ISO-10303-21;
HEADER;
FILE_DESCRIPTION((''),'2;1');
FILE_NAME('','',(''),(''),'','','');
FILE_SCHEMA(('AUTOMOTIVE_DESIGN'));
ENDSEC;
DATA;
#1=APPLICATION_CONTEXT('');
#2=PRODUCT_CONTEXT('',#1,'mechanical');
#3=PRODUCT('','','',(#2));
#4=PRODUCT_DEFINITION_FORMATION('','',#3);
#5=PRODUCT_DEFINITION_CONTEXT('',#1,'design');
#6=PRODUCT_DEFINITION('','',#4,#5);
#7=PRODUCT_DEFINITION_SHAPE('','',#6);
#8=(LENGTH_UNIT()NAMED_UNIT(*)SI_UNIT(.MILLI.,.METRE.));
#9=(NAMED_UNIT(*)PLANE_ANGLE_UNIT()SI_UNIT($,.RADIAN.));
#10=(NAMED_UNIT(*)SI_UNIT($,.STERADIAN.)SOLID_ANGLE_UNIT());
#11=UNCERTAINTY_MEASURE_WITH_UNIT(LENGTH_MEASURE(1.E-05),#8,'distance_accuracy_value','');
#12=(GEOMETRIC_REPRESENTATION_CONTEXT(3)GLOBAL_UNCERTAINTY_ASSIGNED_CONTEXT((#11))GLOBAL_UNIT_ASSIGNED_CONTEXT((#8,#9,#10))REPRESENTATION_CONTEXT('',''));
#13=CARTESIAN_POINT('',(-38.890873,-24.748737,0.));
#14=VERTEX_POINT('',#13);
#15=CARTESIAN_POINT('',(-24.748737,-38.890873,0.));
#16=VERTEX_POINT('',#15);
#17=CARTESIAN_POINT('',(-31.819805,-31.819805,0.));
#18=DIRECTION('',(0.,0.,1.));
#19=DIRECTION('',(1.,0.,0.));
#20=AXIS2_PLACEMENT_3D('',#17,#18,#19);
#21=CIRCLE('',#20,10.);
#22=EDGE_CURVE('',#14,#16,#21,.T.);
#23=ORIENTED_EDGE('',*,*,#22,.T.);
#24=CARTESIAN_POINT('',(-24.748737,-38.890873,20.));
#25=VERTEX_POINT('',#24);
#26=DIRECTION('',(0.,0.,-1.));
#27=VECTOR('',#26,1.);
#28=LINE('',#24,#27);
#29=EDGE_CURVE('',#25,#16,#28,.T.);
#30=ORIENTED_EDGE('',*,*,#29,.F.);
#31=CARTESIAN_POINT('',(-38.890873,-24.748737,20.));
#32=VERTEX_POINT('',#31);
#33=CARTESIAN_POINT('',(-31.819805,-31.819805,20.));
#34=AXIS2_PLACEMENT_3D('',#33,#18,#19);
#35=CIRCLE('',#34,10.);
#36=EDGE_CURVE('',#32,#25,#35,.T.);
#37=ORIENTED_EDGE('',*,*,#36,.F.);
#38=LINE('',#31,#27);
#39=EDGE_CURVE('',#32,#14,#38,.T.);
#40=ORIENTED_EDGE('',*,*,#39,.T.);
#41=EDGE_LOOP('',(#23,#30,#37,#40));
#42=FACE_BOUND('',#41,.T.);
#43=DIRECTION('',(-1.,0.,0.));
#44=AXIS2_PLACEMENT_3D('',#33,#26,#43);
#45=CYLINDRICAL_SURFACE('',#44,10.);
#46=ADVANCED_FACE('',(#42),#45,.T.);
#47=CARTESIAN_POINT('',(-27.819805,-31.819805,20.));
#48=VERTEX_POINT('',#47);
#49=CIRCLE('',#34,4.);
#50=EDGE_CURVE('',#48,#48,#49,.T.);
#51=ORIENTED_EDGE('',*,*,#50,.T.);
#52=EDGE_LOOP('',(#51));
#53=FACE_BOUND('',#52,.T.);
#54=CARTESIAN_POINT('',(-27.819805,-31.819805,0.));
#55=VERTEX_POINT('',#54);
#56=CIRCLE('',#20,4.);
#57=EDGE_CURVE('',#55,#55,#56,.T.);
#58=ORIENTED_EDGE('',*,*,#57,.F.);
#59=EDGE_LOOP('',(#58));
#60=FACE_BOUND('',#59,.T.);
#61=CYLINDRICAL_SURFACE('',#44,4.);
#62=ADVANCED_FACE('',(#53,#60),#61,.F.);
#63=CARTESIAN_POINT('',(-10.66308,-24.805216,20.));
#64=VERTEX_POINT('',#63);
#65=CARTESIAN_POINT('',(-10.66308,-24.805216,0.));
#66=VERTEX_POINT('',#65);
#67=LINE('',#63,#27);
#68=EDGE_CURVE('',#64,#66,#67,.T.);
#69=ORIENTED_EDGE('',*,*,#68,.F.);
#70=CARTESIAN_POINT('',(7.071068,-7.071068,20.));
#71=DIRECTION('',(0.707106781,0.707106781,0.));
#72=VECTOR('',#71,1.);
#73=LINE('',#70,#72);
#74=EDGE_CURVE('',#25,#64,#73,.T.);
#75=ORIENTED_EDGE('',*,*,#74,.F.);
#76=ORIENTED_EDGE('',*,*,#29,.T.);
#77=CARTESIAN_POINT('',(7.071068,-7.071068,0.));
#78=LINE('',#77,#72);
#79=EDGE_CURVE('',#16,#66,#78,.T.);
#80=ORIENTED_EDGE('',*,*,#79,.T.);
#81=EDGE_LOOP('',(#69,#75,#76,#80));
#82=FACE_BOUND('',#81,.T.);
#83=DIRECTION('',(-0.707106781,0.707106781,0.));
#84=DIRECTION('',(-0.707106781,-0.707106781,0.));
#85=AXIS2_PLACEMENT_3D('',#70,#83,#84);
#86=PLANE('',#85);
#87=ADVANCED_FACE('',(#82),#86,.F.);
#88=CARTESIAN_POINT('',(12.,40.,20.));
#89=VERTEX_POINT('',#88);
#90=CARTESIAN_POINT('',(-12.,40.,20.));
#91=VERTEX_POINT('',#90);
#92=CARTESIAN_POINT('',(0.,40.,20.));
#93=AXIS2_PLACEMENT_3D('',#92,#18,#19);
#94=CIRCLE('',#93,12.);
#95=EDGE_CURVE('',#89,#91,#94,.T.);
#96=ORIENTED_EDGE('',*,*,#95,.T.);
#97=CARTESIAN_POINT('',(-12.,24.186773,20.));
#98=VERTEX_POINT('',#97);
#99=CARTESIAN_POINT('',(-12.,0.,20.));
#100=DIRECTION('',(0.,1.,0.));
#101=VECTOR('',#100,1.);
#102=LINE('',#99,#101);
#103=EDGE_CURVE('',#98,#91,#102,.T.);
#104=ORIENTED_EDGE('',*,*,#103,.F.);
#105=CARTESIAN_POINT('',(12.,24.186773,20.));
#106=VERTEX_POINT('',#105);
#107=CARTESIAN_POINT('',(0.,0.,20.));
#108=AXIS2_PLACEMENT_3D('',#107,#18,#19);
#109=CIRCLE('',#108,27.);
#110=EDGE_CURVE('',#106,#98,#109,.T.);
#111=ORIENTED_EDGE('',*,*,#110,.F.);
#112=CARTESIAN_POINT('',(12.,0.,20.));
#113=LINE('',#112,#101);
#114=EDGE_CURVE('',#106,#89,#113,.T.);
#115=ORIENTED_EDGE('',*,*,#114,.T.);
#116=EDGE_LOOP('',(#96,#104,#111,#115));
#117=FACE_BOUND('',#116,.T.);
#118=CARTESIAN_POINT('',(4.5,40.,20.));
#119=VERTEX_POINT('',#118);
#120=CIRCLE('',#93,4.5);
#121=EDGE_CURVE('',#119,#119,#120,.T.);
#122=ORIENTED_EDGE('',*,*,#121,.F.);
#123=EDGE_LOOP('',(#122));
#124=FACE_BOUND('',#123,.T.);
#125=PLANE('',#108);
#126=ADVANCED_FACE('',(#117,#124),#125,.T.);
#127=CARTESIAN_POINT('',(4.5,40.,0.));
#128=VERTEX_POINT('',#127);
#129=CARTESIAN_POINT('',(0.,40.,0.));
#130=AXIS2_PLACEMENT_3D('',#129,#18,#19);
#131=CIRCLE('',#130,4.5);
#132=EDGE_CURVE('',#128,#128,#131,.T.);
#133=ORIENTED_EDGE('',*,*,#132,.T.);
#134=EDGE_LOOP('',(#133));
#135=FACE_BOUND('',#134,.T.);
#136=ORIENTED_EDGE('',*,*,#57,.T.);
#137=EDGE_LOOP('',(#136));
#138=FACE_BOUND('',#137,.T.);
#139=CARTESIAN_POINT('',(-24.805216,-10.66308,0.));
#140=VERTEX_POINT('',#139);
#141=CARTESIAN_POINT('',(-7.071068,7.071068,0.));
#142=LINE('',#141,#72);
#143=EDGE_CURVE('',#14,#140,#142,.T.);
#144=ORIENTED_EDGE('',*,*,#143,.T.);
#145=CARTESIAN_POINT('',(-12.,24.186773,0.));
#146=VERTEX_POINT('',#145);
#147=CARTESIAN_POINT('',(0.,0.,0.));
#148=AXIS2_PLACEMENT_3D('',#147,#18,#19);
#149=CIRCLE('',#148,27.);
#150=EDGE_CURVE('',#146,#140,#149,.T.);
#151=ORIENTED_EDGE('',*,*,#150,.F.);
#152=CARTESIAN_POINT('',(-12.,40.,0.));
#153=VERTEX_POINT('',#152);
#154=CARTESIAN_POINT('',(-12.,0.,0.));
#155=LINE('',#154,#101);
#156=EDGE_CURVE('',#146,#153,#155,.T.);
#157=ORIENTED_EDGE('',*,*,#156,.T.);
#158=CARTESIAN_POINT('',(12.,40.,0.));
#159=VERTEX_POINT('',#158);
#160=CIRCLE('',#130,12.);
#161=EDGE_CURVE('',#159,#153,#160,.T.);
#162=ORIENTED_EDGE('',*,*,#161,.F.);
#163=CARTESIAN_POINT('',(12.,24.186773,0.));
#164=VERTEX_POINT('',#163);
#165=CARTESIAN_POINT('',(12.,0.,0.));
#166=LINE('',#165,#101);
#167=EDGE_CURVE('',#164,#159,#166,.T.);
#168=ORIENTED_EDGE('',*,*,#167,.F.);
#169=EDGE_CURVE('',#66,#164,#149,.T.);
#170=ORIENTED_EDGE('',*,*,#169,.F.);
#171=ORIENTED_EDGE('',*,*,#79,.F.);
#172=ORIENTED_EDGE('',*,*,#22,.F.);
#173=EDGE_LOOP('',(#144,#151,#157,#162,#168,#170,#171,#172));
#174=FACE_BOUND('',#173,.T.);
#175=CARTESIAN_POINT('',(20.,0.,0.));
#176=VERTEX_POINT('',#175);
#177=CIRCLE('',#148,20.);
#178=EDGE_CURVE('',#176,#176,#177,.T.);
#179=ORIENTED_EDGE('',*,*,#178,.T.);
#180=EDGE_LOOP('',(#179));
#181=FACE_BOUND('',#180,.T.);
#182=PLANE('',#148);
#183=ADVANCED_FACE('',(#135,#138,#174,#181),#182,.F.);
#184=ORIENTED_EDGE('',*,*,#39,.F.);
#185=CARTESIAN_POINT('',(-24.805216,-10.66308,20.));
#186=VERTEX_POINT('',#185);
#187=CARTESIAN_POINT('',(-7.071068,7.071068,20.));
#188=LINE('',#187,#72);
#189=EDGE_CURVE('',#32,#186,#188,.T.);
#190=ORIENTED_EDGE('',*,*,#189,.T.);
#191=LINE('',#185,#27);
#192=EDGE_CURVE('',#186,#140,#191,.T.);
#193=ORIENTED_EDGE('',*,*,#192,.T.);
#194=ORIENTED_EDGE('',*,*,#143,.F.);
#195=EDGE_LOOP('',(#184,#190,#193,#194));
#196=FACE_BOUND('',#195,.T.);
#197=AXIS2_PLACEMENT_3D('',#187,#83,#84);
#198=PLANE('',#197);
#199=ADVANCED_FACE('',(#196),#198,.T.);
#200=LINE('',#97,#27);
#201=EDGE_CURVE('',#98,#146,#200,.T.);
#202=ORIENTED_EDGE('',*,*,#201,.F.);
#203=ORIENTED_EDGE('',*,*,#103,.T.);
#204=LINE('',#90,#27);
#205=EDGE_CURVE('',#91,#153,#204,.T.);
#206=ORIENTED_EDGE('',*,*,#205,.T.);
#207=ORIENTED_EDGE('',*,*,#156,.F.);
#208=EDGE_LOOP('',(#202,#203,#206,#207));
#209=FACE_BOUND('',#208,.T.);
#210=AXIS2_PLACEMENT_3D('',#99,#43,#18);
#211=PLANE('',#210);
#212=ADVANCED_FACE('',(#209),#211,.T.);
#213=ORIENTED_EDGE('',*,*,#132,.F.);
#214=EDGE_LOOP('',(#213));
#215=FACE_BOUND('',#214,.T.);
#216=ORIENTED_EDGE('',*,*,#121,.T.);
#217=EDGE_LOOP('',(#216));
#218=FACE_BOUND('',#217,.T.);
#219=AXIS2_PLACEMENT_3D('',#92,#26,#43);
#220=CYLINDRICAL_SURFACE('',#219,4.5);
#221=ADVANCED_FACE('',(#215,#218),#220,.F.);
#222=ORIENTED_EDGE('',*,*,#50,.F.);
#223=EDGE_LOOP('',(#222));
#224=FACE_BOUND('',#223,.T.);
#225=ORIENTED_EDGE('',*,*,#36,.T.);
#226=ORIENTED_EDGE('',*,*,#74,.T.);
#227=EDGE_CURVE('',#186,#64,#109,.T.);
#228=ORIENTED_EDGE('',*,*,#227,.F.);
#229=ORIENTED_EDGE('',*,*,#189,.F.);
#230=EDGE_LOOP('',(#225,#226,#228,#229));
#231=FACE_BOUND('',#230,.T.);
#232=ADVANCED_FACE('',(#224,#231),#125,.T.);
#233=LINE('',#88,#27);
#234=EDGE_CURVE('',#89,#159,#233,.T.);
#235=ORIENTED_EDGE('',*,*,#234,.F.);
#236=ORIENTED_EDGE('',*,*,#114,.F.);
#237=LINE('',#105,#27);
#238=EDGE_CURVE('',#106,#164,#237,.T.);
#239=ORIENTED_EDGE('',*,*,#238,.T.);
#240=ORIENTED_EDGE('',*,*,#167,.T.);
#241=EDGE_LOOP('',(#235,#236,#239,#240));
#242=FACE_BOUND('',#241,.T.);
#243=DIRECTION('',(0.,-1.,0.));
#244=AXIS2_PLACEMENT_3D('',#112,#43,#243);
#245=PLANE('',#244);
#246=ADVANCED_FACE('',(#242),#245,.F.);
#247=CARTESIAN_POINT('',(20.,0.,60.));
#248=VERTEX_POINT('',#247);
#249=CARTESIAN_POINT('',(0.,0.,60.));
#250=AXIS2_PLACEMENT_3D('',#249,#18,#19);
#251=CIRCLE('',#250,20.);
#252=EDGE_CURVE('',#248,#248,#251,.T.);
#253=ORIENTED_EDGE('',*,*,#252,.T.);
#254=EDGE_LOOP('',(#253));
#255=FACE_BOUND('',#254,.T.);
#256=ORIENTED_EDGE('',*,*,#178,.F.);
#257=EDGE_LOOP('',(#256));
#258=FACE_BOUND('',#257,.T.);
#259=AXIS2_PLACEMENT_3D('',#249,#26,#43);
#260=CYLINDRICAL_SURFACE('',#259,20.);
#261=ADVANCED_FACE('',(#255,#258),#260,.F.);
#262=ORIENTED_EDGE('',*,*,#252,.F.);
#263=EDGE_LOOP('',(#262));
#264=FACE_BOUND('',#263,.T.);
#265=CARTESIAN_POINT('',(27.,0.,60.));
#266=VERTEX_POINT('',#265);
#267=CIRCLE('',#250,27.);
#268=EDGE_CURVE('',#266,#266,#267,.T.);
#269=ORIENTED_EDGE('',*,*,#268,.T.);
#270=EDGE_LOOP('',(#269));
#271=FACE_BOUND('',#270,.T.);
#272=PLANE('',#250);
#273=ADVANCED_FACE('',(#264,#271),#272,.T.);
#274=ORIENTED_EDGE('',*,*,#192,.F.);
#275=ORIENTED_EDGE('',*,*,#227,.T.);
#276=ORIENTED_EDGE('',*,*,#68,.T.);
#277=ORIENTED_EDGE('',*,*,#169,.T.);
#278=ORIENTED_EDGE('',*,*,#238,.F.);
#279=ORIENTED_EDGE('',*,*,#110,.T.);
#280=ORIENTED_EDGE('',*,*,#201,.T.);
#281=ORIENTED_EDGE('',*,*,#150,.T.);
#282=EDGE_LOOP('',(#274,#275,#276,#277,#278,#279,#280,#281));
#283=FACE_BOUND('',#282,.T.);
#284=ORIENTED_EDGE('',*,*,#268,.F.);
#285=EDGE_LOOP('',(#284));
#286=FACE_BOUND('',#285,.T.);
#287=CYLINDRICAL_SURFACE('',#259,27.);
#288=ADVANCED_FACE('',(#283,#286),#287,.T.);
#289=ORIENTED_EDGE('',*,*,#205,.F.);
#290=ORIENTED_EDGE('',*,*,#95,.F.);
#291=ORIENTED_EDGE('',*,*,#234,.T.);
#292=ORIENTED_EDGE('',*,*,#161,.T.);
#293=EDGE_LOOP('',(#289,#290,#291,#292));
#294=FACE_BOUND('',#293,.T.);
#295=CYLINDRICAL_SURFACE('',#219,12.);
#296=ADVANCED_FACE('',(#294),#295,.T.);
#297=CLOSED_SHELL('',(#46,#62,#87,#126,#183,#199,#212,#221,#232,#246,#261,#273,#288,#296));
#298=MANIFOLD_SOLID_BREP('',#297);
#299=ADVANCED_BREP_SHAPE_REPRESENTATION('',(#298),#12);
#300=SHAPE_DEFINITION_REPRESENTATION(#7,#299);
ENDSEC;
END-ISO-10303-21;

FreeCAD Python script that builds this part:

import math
import FreeCAD as App
import Part
import Sketcher

V = App.Vector
Q = App.Units.Quantity

doc = App.newDocument("Part")
params = doc.addObject("Spreadsheet::Sheet", "Params")
for row, (alias, value) in enumerate([
    ("sketch1_radius", "27 mm"),
    ("sketch1_radius2", "20 mm"),
    ("pad1_length", "60 mm"),
    ("sketch2_diameter", "8 mm"),
    ("sketch2_diameter2", "9 mm"),
    ("sketch2_radius", "27 mm"),
    ("sketch2_radius2", "10 mm"),
    ("sketch2_radius3", "12 mm"),
    ("pad2_length", "20 mm"),
], start=1):
    params.set(f"A{row}", alias)
    params.set(f"B{row}", "=" + value)
    params.setAlias(f"B{row}", alias)

body = doc.addObject("PartDesign::Body", "Body")

sketch1 = body.newObject("Sketcher::SketchObject", "Sketch")
sketch1.AttachmentSupport = (doc.getObject("XY_Plane"), [""])
sketch1.MapMode = "FlatFace"
sketch1.addGeometry(Part.ArcOfCircle(Part.Circle(V(0, 0, 0), V(0, 0, 1), 27), math.radians(116.3878), math.radians(203.261539)), False)
sketch1.addGeometry(Part.ArcOfCircle(Part.Circle(V(0, 0, 0), V(0, 0, 1), 27), math.radians(-156.738461), math.radians(-113.261539)), False)
sketch1.addGeometry(Part.ArcOfCircle(Part.Circle(V(0, 0, 0), V(0, 0, 1), 27), math.radians(-113.261539), math.radians(0)), False)
sketch1.addGeometry(Part.ArcOfCircle(Part.Circle(V(0, 0, 0), V(0, 0, 1), 27), math.radians(0), math.radians(63.6122)), False)
sketch1.addGeometry(Part.ArcOfCircle(Part.Circle(V(0, 0, 0), V(0, 0, 1), 27), math.radians(63.6122), math.radians(74.973886)), False)
sketch1.addGeometry(Part.ArcOfCircle(Part.Circle(V(0, 0, 0), V(0, 0, 1), 27), math.radians(74.973886), math.radians(105.026114)), False)
sketch1.addGeometry(Part.ArcOfCircle(Part.Circle(V(0, 0, 0), V(0, 0, 1), 27), math.radians(105.026114), math.radians(116.3878)), False)
sketch1.addGeometry(Part.ArcOfCircle(Part.Circle(V(0, 0, 0), V(0, 0, 1), 20), math.radians(126.869898), math.radians(413.130102)), False)
sketch1.addGeometry(Part.ArcOfCircle(Part.Circle(V(0, 0, 0), V(0, 0, 1), 20), math.radians(110.487315), math.radians(126.869898)), False)
sketch1.addGeometry(Part.ArcOfCircle(Part.Circle(V(0, 0, 0), V(0, 0, 1), 20), math.radians(69.512685), math.radians(110.487315)), False)
sketch1.addGeometry(Part.ArcOfCircle(Part.Circle(V(0, 0, 0), V(0, 0, 1), 20), math.radians(53.130102), math.radians(69.512685)), False)
sketch1.addConstraint(Sketcher.Constraint("Tangent", 0, 2, 1, 1))
sketch1.addConstraint(Sketcher.Constraint("Tangent", 1, 2, 2, 1))
sketch1.addConstraint(Sketcher.Constraint("Tangent", 2, 2, 3, 1))
sketch1.addConstraint(Sketcher.Constraint("Tangent", 3, 2, 4, 1))
sketch1.addConstraint(Sketcher.Constraint("Tangent", 4, 2, 5, 1))
sketch1.addConstraint(Sketcher.Constraint("Tangent", 5, 2, 6, 1))
sketch1.addConstraint(Sketcher.Constraint("Tangent", 6, 2, 0, 1))
sketch1.addConstraint(Sketcher.Constraint("Tangent", 7, 1, 8, 2))
sketch1.addConstraint(Sketcher.Constraint("Tangent", 8, 1, 9, 2))
sketch1.addConstraint(Sketcher.Constraint("Tangent", 9, 1, 10, 2))
sketch1.addConstraint(Sketcher.Constraint("Tangent", 10, 1, 7, 2))
sketch1.addConstraint(Sketcher.Constraint("Coincident", 0, 3, -1, 1))
sketch1.addConstraint(Sketcher.Constraint("Coincident", 2, 3, -1, 1))
sketch1.addConstraint(Sketcher.Constraint("Coincident", 4, 3, -1, 1))
sketch1.addConstraint(Sketcher.Constraint("Coincident", 7, 3, -1, 1))
sketch1.addConstraint(Sketcher.Constraint("Equal", 7, 8))
sketch1.addConstraint(Sketcher.Constraint("PointOnObject", 2, 2, -1))
sketch1.addConstraint(Sketcher.Constraint("Horizontal", 4, 2, 5, 2))
sketch1.addConstraint(Sketcher.Constraint("Horizontal", 3, 2, 6, 2))
sketch1.addConstraint(Sketcher.Constraint("Horizontal", 8, 1, 9, 1))
sketch1.addConstraint(Sketcher.Constraint("Horizontal", 7, 1, 10, 1))
sketch1.addConstraint(Sketcher.Constraint("Vertical", 6, 2, 7, 1))
sketch1.addConstraint(Sketcher.Constraint("Vertical", 5, 2, 8, 1))
sketch1.addConstraint(Sketcher.Constraint("Radius", 0, 27.0))
sketch1.addConstraint(Sketcher.Constraint("Radius", 7, 20.0))
sketch1.addConstraint(Sketcher.Constraint("DistanceX", -1, 1, 3, 2, 12.0))
sketch1.addConstraint(Sketcher.Constraint("DistanceX", -1, 1, 4, 2, 7.0))
sketch1.addConstraint(Sketcher.Constraint("DistanceY", 0, 2, -1, 1, 10.66308))
sketch1.addConstraint(Sketcher.Constraint("DistanceX", 1, 2, -1, 1, 10.66308))
sketch1.setExpression("Constraints[23]", "Params.sketch1_radius")
sketch1.setExpression("Constraints[24]", "Params.sketch1_radius2")
pad1 = body.newObject("PartDesign::Pad", "Pad")
pad1.Profile = sketch1
pad1.setExpression("Length", "Params.pad1_length")

sketch2 = body.newObject("Sketcher::SketchObject", "Sketch001")
sketch2.AttachmentSupport = (doc.getObject("XY_Plane"), [""])
sketch2.MapMode = "FlatFace"
sketch2.addGeometry(Part.ArcOfCircle(Part.Circle(V(0, 0, 0), V(0, 0, 1), 27), math.radians(-156.738461), math.radians(-113.261539)), False)
sketch2.addGeometry(Part.LineSegment(V(-24.805216, -10.66308, 0), V(-38.890873, -24.748737, 0)), False)
sketch2.addGeometry(Part.ArcOfCircle(Part.Circle(V(-31.819805, -31.819805, 0), V(0, 0, 1), 10), math.radians(135), math.radians(315)), False)
sketch2.addGeometry(Part.LineSegment(V(-24.748737, -38.890873, 0), V(-10.66308, -24.805216, 0)), False)
sketch2.addGeometry(Part.Circle(V(-31.819805, -31.819805, 0), V(0, 0, 1), 4), False)
sketch2.addGeometry(Part.ArcOfCircle(Part.Circle(V(0, 0, 0), V(0, 0, 1), 27), math.radians(105.026114), math.radians(116.3878)), False)
sketch2.addGeometry(Part.ArcOfCircle(Part.Circle(V(0, 0, 0), V(0, 0, 1), 27), math.radians(74.973886), math.radians(105.026114)), False)
sketch2.addGeometry(Part.ArcOfCircle(Part.Circle(V(0, 0, 0), V(0, 0, 1), 27), math.radians(63.6122), math.radians(74.973886)), False)
sketch2.addGeometry(Part.LineSegment(V(12, 24.186773, 0), V(12, 40, 0)), False)
sketch2.addGeometry(Part.ArcOfCircle(Part.Circle(V(0, 40, 0), V(0, 0, 1), 12), math.radians(0), math.radians(180)), False)
sketch2.addGeometry(Part.LineSegment(V(-12, 40, 0), V(-12, 24.186773, 0)), False)
sketch2.addGeometry(Part.Circle(V(0, 40, 0), V(0, 0, 1), 4.5), False)
sketch2.addConstraint(Sketcher.Constraint("Coincident", 0, 1, 1, 1))
sketch2.addConstraint(Sketcher.Constraint("Tangent", 1, 2, 2, 1))
sketch2.addConstraint(Sketcher.Constraint("Tangent", 2, 2, 3, 1))
sketch2.addConstraint(Sketcher.Constraint("Coincident", 3, 2, 0, 2))
sketch2.addConstraint(Sketcher.Constraint("Tangent", 5, 1, 6, 2))
sketch2.addConstraint(Sketcher.Constraint("Tangent", 6, 1, 7, 2))
sketch2.addConstraint(Sketcher.Constraint("Coincident", 7, 1, 8, 1))
sketch2.addConstraint(Sketcher.Constraint("Tangent", 8, 2, 9, 1))
sketch2.addConstraint(Sketcher.Constraint("Tangent", 9, 2, 10, 1))
sketch2.addConstraint(Sketcher.Constraint("Coincident", 10, 2, 5, 2))
sketch2.addConstraint(Sketcher.Constraint("Vertical", 8))
sketch2.addConstraint(Sketcher.Constraint("Vertical", 10))
sketch2.addConstraint(Sketcher.Constraint("Coincident", 0, 3, -1, 1))
sketch2.addConstraint(Sketcher.Constraint("Coincident", 5, 3, -1, 1))
sketch2.addConstraint(Sketcher.Constraint("Coincident", 7, 3, -1, 1))
sketch2.addConstraint(Sketcher.Constraint("Coincident", 4, 3, 2, 3))
sketch2.addConstraint(Sketcher.Constraint("Coincident", 11, 3, 9, 3))
sketch2.addConstraint(Sketcher.Constraint("Equal", 0, 5))
sketch2.addConstraint(Sketcher.Constraint("PointOnObject", 9, 3, -2))
sketch2.addConstraint(Sketcher.Constraint("Parallel", 1, 3))
sketch2.addConstraint(Sketcher.Constraint("Horizontal", 5, 1, 6, 1))
sketch2.addConstraint(Sketcher.Constraint("Equal", 1, 3))
sketch2.addConstraint(Sketcher.Constraint("Diameter", 4, 8.0))
sketch2.addConstraint(Sketcher.Constraint("Diameter", 11, 9.0))
sketch2.addConstraint(Sketcher.Constraint("Radius", 0, 27.0))
sketch2.addConstraint(Sketcher.Constraint("Radius", 2, 10.0))
sketch2.addConstraint(Sketcher.Constraint("Radius", 9, 12.0))
sketch2.addConstraint(Sketcher.Constraint("Angle", 1, Q("-135 deg")))
sketch2.addConstraint(Sketcher.Constraint("DistanceY", -1, 1, 9, 3, 40.0))
sketch2.addConstraint(Sketcher.Constraint("DistanceX", 5, 1, -1, 1, 7.0))
sketch2.addConstraint(Sketcher.Constraint("DistanceX", 2, 3, 0, 1, 7.014589))
sketch2.setExpression("Constraints[22]", "Params.sketch2_diameter")
sketch2.setExpression("Constraints[23]", "Params.sketch2_diameter2")
sketch2.setExpression("Constraints[24]", "Params.sketch2_radius")
sketch2.setExpression("Constraints[25]", "Params.sketch2_radius2")
sketch2.setExpression("Constraints[26]", "Params.sketch2_radius3")
pad2 = body.newObject("PartDesign::Pad", "Pad001")
pad2.Profile = sketch2
pad2.setExpression("Length", "Params.pad2_length")

doc.recompute()
